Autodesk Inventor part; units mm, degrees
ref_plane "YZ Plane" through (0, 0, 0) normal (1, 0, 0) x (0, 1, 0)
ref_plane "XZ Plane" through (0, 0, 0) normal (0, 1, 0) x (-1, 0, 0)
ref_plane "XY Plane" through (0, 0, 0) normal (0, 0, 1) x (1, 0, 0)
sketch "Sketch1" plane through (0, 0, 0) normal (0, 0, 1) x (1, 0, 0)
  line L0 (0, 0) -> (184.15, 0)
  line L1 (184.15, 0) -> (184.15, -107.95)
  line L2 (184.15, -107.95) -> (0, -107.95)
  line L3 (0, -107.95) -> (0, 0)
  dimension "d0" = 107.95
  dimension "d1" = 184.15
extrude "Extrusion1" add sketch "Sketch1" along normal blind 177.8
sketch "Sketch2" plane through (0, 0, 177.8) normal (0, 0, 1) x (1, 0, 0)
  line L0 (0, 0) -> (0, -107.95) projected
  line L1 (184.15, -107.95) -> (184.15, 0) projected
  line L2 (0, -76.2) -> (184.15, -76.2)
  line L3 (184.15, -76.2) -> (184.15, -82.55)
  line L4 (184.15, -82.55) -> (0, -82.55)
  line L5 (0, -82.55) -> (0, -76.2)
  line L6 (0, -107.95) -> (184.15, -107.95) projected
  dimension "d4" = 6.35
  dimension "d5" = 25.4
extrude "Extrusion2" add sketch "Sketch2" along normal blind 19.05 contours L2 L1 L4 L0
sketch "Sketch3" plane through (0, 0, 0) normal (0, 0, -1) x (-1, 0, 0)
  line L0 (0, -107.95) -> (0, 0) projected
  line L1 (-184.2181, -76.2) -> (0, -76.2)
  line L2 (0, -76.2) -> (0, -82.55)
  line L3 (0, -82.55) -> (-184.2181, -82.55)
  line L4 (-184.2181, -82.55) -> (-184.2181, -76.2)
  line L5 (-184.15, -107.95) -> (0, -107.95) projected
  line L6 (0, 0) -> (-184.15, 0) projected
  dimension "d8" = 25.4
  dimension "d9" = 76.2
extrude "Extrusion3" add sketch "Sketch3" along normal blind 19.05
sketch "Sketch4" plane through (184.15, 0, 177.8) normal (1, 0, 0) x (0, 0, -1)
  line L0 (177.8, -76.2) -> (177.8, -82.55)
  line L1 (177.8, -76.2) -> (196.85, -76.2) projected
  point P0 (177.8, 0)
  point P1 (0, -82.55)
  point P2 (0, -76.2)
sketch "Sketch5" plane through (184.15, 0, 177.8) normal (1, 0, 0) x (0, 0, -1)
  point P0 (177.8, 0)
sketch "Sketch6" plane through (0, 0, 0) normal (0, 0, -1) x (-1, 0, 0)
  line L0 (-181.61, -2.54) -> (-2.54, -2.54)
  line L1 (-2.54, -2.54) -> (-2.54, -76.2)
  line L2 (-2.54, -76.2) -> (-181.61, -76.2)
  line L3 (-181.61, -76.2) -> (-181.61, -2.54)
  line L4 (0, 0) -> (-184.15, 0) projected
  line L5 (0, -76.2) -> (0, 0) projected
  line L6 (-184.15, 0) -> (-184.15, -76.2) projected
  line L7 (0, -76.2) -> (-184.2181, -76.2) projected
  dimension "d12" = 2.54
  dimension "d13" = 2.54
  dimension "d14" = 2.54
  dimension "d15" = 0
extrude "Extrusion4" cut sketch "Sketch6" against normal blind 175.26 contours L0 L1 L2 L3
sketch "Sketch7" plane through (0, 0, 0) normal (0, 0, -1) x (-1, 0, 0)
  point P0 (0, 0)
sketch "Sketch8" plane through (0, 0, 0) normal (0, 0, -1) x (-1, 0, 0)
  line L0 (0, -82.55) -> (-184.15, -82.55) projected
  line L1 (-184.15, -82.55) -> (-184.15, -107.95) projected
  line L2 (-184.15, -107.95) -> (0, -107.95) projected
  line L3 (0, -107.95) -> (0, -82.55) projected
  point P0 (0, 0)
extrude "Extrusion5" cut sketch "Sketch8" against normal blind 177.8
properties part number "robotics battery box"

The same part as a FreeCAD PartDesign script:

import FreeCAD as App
import Part
import Sketcher
Q = App.Units.Quantity


def add_polygon(sketch, points):
    """Adds a closed chain of lines whose ends are joined by coincident constraints."""
    first, n = sketch.GeometryCount, len(points)
    for a, b in zip(points, points[1:] + points[:1]):
        sketch.addGeometry(Part.LineSegment(App.Vector(*a, 0), App.Vector(*b, 0)), False)
    for i in range(n):
        sketch.addConstraint(Sketcher.Constraint("Coincident", first + i, 2, first + (i + 1) % n, 1))

doc = App.newDocument("Part")
body = doc.addObject("PartDesign::Body", "Body")

sketch1 = doc.addObject("Sketcher::SketchObject", "Sketch")
body.addObject(sketch1)
sketch1.AttachmentSupport = (doc.XY_Plane, [""])
sketch1.MapMode = "FlatFace"
add_polygon(sketch1, [(184, 0), (0, 0), (0, -108), (184, -108)])
sketch1.addConstraint(Sketcher.Constraint("Horizontal", 0))
sketch1.addConstraint(Sketcher.Constraint("Vertical", 1))
sketch1.addConstraint(Sketcher.Constraint("Horizontal", 2))
sketch1.addConstraint(Sketcher.Constraint("Vertical", 3))
sketch1.addConstraint(Sketcher.Constraint("Coincident", 0, 2, -1, 1))
sketch1.addConstraint(Sketcher.Constraint("DistanceX", 0, 2, 0, 1, Q("7.25 in")))
sketch1.addConstraint(Sketcher.Constraint("DistanceY", 1, 2, 1, 1, Q("4.25 in")))
pad1 = doc.addObject("PartDesign::Pad", "Pad")
body.addObject(pad1)
pad1.Profile = sketch1
pad1.Length = Q("7 in")

sketch2 = doc.addObject("Sketcher::SketchObject", "Sketch001")
body.addObject(sketch2)
sketch2.AttachmentSupport = (doc.XY_Plane, [""])
sketch2.MapMode = "FlatFace"
sketch2.AttachmentOffset = App.Placement(App.Vector(0, 0, 7 * 25.4), App.Rotation())
add_polygon(sketch2, [(184, -76), (0, -76), (0, -83), (184, -83)])
sketch2.addConstraint(Sketcher.Constraint("Horizontal", 0))
sketch2.addConstraint(Sketcher.Constraint("Vertical", 1))
sketch2.addConstraint(Sketcher.Constraint("Horizontal", 2))
sketch2.addConstraint(Sketcher.Constraint("Vertical", 3))
sketch2.addConstraint(Sketcher.Constraint("PointOnObject", 0, 2, -2))
sketch2.addConstraint(Sketcher.Constraint("DistanceY", 1, 2, 1, 1, Q("0.25 in")))
sketch2.addConstraint(Sketcher.Constraint("DistanceY", 0, 2, -1, 1, Q("3 in")))
sketch2.addConstraint(Sketcher.Constraint("DistanceX", 0, 2, 0, 1, Q("7.25 in")))
pad2 = doc.addObject("PartDesign::Pad", "Pad001")
body.addObject(pad2)
pad2.Profile = sketch2
pad2.Length = Q("0.75 in")

sketch3 = doc.addObject("Sketcher::SketchObject", "Sketch002")
body.addObject(sketch3)
sketch3.AttachmentSupport = (doc.XY_Plane, [""])
sketch3.MapMode = "FlatFace"
add_polygon(sketch3, [(184, -83), (0, -83), (0, -76), (184, -76)])
sketch3.addConstraint(Sketcher.Constraint("Horizontal", 0))
sketch3.addConstraint(Sketcher.Constraint("Vertical", 1))
sketch3.addConstraint(Sketcher.Constraint("Horizontal", 2))
sketch3.addConstraint(Sketcher.Constraint("Vertical", 3))
sketch3.addConstraint(Sketcher.Constraint("PointOnObject", 0, 2, -2))
sketch3.addConstraint(Sketcher.Constraint("DistanceY", 1, 2, -1, 1, Q("3 in")))
sketch3.addConstraint(Sketcher.Constraint("DistanceY", 1, 1, 1, 2, Q("0.25 in")))
sketch3.addConstraint(Sketcher.Constraint("DistanceX", 0, 2, 0, 1, 184.218))
pad3 = doc.addObject("PartDesign::Pad", "Pad002")
body.addObject(pad3)
pad3.Profile = sketch3
pad3.Length = Q("0.75 in")
pad3.Reversed = True

sketch4 = doc.addObject("Sketcher::SketchObject", "Sketch003")
body.addObject(sketch4)
sketch4.AttachmentSupport = (doc.XY_Plane, [""])
sketch4.MapMode = "FlatFace"
add_polygon(sketch4, [(3, -3), (182, -3), (182, -76), (3, -76)])
sketch4.addConstraint(Sketcher.Constraint("Horizontal", 0))
sketch4.addConstraint(Sketcher.Constraint("Vertical", 1))
sketch4.addConstraint(Sketcher.Constraint("Horizontal", 2))
sketch4.addConstraint(Sketcher.Constraint("Vertical", 3))
sketch4.addConstraint(Sketcher.Constraint("DistanceY", 0, 2, -1, 1, Q("0.1 in")))
sketch4.addConstraint(Sketcher.Constraint("DistanceX", -1, 1, 2, 2, Q("0.1 in")))
sketch4.addConstraint(Sketcher.Constraint("DistanceY", 1, 2, 1, 1, Q("2.9 in")))
sketch4.addConstraint(Sketcher.Constraint("DistanceX", 0, 1, 0, 2, Q("7.05 in")))
pocket1 = doc.addObject("PartDesign::Pocket", "Pocket")
body.addObject(pocket1)
pocket1.Profile = sketch4
pocket1.Length = Q("6.9 in")
pocket1.Reversed = True

sketch5 = doc.addObject("Sketcher::SketchObject", "Sketch004")
body.addObject(sketch5)
sketch5.AttachmentSupport = (doc.XY_Plane, [""])
sketch5.MapMode = "FlatFace"
add_polygon(sketch5, [(0, -108), (0, -83), (184, -83), (184, -108)])
sketch5.addConstraint(Sketcher.Constraint("Vertical", 0))
sketch5.addConstraint(Sketcher.Constraint("Horizontal", 1))
sketch5.addConstraint(Sketcher.Constraint("Vertical", 2))
sketch5.addConstraint(Sketcher.Constraint("Horizontal", 3))
sketch5.addConstraint(Sketcher.Constraint("PointOnObject", 0, 2, -2))
sketch5.addConstraint(Sketcher.Constraint("DistanceY", 0, 1, 0, 2, Q("1 in")))
sketch5.addConstraint(Sketcher.Constraint("DistanceX", 1, 1, 1, 2, Q("7.25 in")))
sketch5.addConstraint(Sketcher.Constraint("DistanceY", 0, 2, -1, 1, Q("3.25 in")))
pocket2 = doc.addObject("PartDesign::Pocket", "Pocket001")
body.addObject(pocket2)
pocket2.Profile = sketch5
pocket2.Length = Q("7 in")
pocket2.Reversed = True

doc.recompute()
